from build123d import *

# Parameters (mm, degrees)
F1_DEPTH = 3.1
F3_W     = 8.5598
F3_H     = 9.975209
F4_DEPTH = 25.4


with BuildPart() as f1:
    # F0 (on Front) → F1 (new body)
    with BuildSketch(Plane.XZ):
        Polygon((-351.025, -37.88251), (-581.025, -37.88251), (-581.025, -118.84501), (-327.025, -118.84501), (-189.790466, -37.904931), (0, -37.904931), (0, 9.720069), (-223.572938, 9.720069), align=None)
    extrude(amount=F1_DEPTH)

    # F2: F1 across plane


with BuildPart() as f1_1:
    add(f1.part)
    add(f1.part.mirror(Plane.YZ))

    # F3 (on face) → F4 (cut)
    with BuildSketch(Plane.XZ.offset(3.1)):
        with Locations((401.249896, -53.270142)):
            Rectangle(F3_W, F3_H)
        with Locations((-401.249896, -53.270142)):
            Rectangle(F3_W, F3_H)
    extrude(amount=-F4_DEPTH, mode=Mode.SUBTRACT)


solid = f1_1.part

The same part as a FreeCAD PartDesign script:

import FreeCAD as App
import Part
import Sketcher
from FreeCAD import Vector
Q = App.Units.Quantity


def add_polygon(sketch, points):
    """Adds a closed chain of lines whose ends are joined by coincident constraints."""
    first, n = sketch.GeometryCount, len(points)
    for a, b in zip(points, points[1:] + points[:1]):
        sketch.addGeometry(Part.LineSegment(App.Vector(*a, 0), App.Vector(*b, 0)), False)
    for i in range(n):
        sketch.addConstraint(Sketcher.Constraint("Coincident", first + i, 2, first + (i + 1) % n, 1))

doc = App.newDocument("Part")
body = doc.addObject("PartDesign::Body", "Body")

# Sketch on XZ plane
sketch1 = body.newObject("Sketcher::SketchObject", "Sketch")
sketch1.AttachmentSupport = (doc.getObject("XZ_Plane"), [""])
sketch1.MapMode = "FlatFace"
add_polygon(sketch1, [(-351, -38), (-581, -38), (-581, -119), (-327, -119), (-190, -38), (0, -38), (0, 10), (-224, 10)])  # lines 0-7
sketch1.addConstraint([
    Sketcher.Constraint("Horizontal", 0),
    Sketcher.Constraint("Vertical", 1),
    Sketcher.Constraint("Horizontal", 2),
    Sketcher.Constraint("Horizontal", 4),
    Sketcher.Constraint("Vertical", 5),
    Sketcher.Constraint("Horizontal", 6),
    Sketcher.Constraint("PointOnObject", 4, 2, -2),
    Sketcher.Constraint("DistanceX", 2, 1, 2, 2, Q("10 in")),
    Sketcher.Constraint("DistanceY", 1, 2, 1, 1, Q("3.1875 in")),
    Sketcher.Constraint("DistanceY", 5, 1, 5, 2, Q("1.875 in")),
    Sketcher.Constraint("DistanceX", 0, 2, -1, 1, Q("22.875 in")),
    Sketcher.Constraint("DistanceX", 0, 2, 0, 1, 230.0),
    Sketcher.Constraint("DistanceX", 6, 2, 6, 1, 223.572938),
    Sketcher.Constraint("DistanceX", 4, 1, 4, 2, 189.790466),
    Sketcher.Constraint("DistanceY", 0, 2, -1, 1, 37.88251),
    Sketcher.Constraint("DistanceY", 3, 2, -1, 1, 37.904931),
])
pad1 = body.newObject("PartDesign::Pad", "Pad")
pad1.Profile = sketch1
pad1.Length = 3.1
body2 = doc.addObject("PartDesign::Body", "Body001")
doc.recompute()

body2.BaseFeature = body
doc.recompute()

mirroring = doc.addObject("Part::Mirroring", "Mirroring")
mirroring.Source = body
mirroring.Base = Vector(0, 0, 0)
mirroring.Normal = Vector(1, 0, 0)
body3 = doc.addObject("PartDesign::Body", "Body002")
body3.BaseFeature = mirroring
boolean = body2.newObject("PartDesign::Boolean", "Boolean")
boolean.Type = "Fuse"
boolean.addObjects([body3])
doc.recompute()

# Sketch on XZ plane
sketch2 = body2.newObject("Sketcher::SketchObject", "Sketch001")
sketch2.AttachmentSupport = (doc.getObject("XZ_Plane001"), [""])
sketch2.MapMode = "FlatFace"
sketch2.AttachmentOffset = App.Placement(Vector(0, 0, 3.1), App.Rotation())
add_polygon(sketch2, [(397, -48), (397, -58), (406, -58), (406, -48)])  # lines 0-3
add_polygon(sketch2, [(-406, -48), (-406, -58), (-397, -58), (-397, -48)])  # lines 4-7
sketch2.addConstraint([
    Sketcher.Constraint("Vertical", 0),
    Sketcher.Constraint("Horizontal", 1),
    Sketcher.Constraint("Vertical", 2),
    Sketcher.Constraint("Horizontal", 3),
    Sketcher.Constraint("Vertical", 4),
    Sketcher.Constraint("Horizontal", 5),
    Sketcher.Constraint("Vertical", 6),
    Sketcher.Constraint("Horizontal", 7),
    Sketcher.Constraint("Symmetric", 1, 2, 4, 2, -2),
    Sketcher.Constraint("Symmetric", 3, 2, 6, 2, -2),
    Sketcher.Constraint("DistanceX", 1, 1, 1, 2, Q("0.337 in")),
    Sketcher.Constraint("DistanceY", 0, 2, 0, 1, 9.975209),
    Sketcher.Constraint("DistanceX", 4, 2, 0, 2, 802.499792),
    Sketcher.Constraint("DistanceY", 0, 2, -1, 1, 58.257747),
])
pocket1 = body2.newObject("PartDesign::Pocket", "Pocket")
pocket1.Profile = sketch2
pocket1.Length = Q("1 in")
mirroring.Visibility = False

doc.recompute()
